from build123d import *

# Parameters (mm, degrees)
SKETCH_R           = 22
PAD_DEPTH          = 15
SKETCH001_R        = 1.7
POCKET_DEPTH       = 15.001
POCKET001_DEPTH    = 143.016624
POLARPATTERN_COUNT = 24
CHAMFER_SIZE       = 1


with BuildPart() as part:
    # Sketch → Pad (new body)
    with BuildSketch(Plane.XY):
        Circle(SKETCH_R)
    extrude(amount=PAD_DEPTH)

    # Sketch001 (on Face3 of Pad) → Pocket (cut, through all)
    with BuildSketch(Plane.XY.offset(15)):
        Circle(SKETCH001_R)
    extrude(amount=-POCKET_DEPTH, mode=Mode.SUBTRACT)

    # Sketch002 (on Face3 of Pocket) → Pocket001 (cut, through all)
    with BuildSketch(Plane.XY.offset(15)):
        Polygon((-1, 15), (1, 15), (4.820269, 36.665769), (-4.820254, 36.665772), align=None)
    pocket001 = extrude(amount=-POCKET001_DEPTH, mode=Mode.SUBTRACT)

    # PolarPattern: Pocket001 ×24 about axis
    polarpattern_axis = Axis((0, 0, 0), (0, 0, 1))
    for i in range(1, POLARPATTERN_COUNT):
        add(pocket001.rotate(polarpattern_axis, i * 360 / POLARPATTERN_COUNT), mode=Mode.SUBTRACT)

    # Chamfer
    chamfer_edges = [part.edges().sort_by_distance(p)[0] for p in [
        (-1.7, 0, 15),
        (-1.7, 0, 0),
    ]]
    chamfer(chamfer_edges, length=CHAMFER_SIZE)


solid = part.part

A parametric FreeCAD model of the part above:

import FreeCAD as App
import Part
import Sketcher
from FreeCAD import Vector
Q = App.Units.Quantity


def edges_at(feature, points):
    """Names of the edges that pass closest to the given points."""
    edges = feature.Shape.Edges
    near = lambda p: min(range(len(edges)), key=lambda i: edges[i].distToShape(Part.Vertex(*p))[0])
    return sorted({f"Edge{near(p) + 1}" for p in points})

doc = App.newDocument("Part")
body = doc.addObject("PartDesign::Body", "Body")

sketch1 = body.newObject("Sketcher::SketchObject", "Sketch")
sketch1.AttachmentSupport = (doc.getObject("XY_Plane"), [""])
sketch1.MapMode = "FlatFace"
sketch1.addGeometry(Part.Circle(Vector(0, 0, 0), Vector(0, 0, 1), 22), False)
sketch1.addConstraint(Sketcher.Constraint("Coincident", 0, 3, -1, 1))
sketch1.addConstraint(Sketcher.Constraint("Diameter", 0, Q("44 mm")))
pad1 = body.newObject("PartDesign::Pad", "Pad")
pad1.Profile = sketch1
pad1.Length = 15

sketch2 = body.newObject("Sketcher::SketchObject", "Sketch001")
sketch2.AttachmentSupport = (doc.getObject("XY_Plane"), [""])
sketch2.MapMode = "FlatFace"
sketch2.AttachmentOffset = App.Placement(Vector(0, 0, 15), App.Rotation())
sketch2.addGeometry(Part.Circle(Vector(0, 0, 0), Vector(0, 0, 1), 1.7), False)
sketch2.addConstraint(Sketcher.Constraint("Coincident", 0, 3, -1, 1))
sketch2.addConstraint(Sketcher.Constraint("Diameter", 0, Q("3.4 mm")))
pocket1 = body.newObject("PartDesign::Pocket", "Pocket")
pocket1.Profile = sketch2
pocket1.Type = "ThroughAll"

sketch3 = body.newObject("Sketcher::SketchObject", "Sketch002")
sketch3.AttachmentSupport = (doc.getObject("XY_Plane"), [""])
sketch3.MapMode = "FlatFace"
sketch3.AttachmentOffset = App.Placement(Vector(0, 0, 15), App.Rotation())
sketch3.addGeometry(Part.LineSegment(Vector(-1, 15, 0), Vector(1, 15, 0)), False)
sketch3.addGeometry(Part.LineSegment(Vector(1, 15, 0), Vector(4.8, 36.7, 0)), False)
sketch3.addGeometry(Part.LineSegment(Vector(4.8, 36.7, 0), Vector(-4.8, 36.7, 0)), False)
sketch3.addGeometry(Part.LineSegment(Vector(-4.8, 36.7, 0), Vector(-1, 15, 0)), False)
sketch3.addConstraint(Sketcher.Constraint("Coincident", 0, 2, 1, 1))
sketch3.addConstraint(Sketcher.Constraint("Coincident", 1, 2, 2, 1))
sketch3.addConstraint(Sketcher.Constraint("Coincident", 2, 2, 3, 1))
sketch3.addConstraint(Sketcher.Constraint("Coincident", 3, 2, 0, 1))
sketch3.addConstraint(Sketcher.Constraint("Horizontal", 0))
sketch3.addConstraint(Sketcher.Constraint("Equal", 1, 3))
sketch3.addConstraint(Sketcher.Constraint("DistanceX", 0, 1, 0, 2, Q("2 mm")))
sketch3.addConstraint(Sketcher.Constraint("Angle", 2, Q("179.999982 deg")))
sketch3.addConstraint(Sketcher.Constraint("Angle", 3, Q("-80.000016 deg")))
sketch3.addConstraint(Sketcher.Constraint("Distance", 1, Q("22 mm")))
sketch3.addConstraint(Sketcher.Constraint("DistanceX", -1, 1, 0, 2, Q("1 mm")))
sketch3.addConstraint(Sketcher.Constraint("DistanceY", -1, 1, 0, 2, Q("15 mm")))
pocket2 = body.newObject("PartDesign::Pocket", "Pocket001")
pocket2.Profile = sketch3
pocket2.Type = "ThroughAll"
doc.recompute()

polarpattern = body.newObject("PartDesign::PolarPattern", "PolarPattern")
polarpattern.Originals = [pocket2]
polarpattern.Axis = (doc.getObject("Z_Axis"), [""])
polarpattern.Angle = 360
polarpattern.Occurrences = 24
body.Tip = polarpattern
doc.recompute()

chamfer = body.newObject("PartDesign::Chamfer", "Chamfer")
chamfer.Base = (polarpattern, edges_at(polarpattern, [(-1.7, 0, 15), (-1.7, 0, 0)]))
chamfer.Size = 1

doc.recompute()
